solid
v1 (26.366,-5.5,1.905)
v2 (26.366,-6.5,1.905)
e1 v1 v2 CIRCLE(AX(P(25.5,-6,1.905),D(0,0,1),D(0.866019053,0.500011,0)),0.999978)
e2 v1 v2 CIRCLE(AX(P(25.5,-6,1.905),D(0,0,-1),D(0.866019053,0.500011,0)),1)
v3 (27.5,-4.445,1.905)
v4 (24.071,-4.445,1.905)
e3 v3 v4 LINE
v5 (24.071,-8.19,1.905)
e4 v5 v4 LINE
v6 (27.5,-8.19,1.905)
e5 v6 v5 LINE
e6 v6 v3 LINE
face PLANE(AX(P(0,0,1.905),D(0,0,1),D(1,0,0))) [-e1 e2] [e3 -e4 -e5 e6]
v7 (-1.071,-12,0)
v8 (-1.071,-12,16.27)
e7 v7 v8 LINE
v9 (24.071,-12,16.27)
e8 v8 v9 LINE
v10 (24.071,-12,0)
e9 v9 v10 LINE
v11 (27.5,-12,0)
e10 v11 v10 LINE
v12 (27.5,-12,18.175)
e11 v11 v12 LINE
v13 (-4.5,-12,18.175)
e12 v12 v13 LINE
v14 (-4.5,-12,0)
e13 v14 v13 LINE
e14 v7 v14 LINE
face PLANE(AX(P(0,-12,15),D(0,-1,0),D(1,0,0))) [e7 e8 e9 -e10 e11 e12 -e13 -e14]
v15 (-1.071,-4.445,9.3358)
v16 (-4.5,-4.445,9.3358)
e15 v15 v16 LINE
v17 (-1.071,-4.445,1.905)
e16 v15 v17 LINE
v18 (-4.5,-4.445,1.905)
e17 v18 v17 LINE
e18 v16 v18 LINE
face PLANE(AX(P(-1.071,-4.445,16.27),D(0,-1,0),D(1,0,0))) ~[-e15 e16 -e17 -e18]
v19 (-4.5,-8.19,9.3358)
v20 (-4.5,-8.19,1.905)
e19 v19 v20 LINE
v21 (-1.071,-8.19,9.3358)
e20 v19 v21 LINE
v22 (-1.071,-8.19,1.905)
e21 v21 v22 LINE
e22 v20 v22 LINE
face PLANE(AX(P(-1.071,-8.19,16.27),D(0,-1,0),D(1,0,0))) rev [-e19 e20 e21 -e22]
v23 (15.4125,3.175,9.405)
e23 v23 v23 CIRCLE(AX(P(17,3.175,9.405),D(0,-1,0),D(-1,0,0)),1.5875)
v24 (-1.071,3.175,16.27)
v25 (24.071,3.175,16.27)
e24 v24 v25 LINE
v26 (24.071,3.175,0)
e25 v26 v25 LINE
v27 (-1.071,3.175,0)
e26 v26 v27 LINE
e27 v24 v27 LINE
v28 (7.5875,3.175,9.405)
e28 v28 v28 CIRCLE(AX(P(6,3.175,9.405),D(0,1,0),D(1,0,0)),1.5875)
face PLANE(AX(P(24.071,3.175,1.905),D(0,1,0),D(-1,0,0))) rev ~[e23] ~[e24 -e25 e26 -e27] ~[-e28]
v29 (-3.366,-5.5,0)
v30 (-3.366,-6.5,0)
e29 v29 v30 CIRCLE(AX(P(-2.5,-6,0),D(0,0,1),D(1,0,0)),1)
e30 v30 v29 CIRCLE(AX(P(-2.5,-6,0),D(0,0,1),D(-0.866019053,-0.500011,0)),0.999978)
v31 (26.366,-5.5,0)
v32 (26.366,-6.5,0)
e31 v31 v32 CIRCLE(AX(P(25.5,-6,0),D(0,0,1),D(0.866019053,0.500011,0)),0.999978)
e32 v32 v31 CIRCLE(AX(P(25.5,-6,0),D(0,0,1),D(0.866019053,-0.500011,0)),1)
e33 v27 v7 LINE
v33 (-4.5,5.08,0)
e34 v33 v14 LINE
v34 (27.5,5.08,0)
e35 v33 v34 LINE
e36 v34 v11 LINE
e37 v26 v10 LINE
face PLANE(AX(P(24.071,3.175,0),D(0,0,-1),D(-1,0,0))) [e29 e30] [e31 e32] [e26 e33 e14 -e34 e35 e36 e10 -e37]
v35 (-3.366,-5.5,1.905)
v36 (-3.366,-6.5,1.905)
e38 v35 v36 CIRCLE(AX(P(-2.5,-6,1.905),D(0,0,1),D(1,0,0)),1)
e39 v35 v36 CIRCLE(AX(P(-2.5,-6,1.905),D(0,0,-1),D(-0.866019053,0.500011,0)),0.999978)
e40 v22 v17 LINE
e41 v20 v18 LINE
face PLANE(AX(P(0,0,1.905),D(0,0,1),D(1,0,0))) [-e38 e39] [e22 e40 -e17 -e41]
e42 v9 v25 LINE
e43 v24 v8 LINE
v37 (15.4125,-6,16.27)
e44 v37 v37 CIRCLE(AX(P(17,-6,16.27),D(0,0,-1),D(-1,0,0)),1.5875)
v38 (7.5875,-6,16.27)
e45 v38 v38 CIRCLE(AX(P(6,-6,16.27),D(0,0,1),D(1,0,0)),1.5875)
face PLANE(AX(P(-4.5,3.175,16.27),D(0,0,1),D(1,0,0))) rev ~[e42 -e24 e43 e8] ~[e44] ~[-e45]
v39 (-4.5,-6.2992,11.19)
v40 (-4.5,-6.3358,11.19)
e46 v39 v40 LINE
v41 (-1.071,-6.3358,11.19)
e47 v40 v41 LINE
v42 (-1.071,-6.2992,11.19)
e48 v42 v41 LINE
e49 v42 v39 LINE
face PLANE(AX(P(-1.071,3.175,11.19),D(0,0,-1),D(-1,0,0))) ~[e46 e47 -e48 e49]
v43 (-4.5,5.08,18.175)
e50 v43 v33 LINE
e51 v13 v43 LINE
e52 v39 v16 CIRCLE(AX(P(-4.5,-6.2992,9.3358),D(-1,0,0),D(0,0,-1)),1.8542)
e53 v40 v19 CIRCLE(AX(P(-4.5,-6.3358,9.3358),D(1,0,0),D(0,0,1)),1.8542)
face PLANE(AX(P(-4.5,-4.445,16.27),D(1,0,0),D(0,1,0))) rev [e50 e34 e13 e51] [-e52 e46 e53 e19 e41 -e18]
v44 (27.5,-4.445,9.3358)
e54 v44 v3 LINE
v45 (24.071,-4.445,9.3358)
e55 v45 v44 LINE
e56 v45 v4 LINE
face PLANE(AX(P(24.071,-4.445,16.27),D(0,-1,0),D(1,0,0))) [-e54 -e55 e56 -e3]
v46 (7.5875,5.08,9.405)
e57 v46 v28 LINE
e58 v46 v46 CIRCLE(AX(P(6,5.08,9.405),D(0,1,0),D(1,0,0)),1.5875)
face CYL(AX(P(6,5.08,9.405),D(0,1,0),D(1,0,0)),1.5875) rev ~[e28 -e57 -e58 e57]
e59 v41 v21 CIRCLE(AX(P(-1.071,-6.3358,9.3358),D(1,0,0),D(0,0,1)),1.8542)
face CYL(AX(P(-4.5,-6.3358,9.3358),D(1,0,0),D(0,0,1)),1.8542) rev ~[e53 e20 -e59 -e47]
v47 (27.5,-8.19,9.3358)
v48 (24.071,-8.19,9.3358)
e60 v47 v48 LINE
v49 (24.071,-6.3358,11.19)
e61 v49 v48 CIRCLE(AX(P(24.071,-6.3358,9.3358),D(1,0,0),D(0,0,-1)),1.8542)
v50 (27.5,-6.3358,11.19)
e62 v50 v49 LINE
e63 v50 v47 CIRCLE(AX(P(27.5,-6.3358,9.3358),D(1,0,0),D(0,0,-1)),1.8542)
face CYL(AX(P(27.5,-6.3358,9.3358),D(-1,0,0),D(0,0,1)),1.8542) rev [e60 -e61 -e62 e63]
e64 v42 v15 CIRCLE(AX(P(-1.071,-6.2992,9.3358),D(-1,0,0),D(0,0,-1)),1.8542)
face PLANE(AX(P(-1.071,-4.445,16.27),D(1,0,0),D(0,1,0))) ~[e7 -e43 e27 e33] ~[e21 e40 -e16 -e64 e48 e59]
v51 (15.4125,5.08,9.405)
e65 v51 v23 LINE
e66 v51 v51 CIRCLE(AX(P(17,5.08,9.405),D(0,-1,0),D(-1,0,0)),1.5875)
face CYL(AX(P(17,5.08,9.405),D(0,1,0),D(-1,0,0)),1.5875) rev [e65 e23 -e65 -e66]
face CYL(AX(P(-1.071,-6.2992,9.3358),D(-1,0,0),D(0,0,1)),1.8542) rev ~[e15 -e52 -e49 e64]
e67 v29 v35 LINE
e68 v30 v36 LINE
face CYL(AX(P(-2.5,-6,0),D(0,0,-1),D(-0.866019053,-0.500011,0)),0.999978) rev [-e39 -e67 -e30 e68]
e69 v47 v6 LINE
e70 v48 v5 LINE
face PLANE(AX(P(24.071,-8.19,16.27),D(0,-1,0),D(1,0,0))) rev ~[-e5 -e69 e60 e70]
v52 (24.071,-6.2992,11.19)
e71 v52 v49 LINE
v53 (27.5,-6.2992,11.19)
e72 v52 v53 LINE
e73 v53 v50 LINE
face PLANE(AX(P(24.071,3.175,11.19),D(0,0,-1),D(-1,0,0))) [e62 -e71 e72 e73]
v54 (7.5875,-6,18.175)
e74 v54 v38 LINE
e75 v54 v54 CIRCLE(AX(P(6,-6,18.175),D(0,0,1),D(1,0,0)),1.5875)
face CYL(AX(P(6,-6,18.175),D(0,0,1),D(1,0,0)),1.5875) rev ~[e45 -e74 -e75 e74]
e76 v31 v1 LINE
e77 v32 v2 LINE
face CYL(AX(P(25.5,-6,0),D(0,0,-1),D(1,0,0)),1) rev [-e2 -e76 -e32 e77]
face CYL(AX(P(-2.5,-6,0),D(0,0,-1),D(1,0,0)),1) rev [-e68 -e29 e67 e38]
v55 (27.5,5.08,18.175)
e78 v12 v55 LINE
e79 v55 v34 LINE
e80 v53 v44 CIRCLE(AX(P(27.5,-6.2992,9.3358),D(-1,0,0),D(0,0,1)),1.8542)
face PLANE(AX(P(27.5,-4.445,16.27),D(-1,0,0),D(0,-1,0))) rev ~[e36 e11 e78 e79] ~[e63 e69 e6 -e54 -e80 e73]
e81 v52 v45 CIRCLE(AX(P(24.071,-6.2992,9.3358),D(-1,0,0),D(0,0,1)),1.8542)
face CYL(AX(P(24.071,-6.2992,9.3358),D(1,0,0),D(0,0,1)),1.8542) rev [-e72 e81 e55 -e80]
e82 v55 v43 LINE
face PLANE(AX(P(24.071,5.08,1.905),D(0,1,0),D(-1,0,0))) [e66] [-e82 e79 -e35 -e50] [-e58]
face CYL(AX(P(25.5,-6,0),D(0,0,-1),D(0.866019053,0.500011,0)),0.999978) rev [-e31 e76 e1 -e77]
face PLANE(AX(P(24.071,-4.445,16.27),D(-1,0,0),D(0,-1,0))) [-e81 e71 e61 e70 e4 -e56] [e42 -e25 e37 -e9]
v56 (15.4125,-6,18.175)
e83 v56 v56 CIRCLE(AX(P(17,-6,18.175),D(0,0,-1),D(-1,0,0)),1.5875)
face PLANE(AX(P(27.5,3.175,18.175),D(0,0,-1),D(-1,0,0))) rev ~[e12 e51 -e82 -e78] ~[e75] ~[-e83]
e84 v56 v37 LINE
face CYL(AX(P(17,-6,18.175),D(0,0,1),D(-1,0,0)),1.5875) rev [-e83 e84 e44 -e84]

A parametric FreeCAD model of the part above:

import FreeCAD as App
import Part
import Sketcher

V = App.Vector
Q = App.Units.Quantity


def edges_at(feature, points):
    """Names of the edges that pass closest to the given points."""
    edges = feature.Shape.Edges
    near = lambda p: min(range(len(edges)), key=lambda i: edges[i].distToShape(Part.Vertex(*p))[0])
    return sorted({f"Edge{near(p) + 1}" for p in points})

doc = App.newDocument("Part")
body = doc.addObject("PartDesign::Body", "Body")
body.AllowCompound = True

# Sketch on XY plane
sketch1 = body.newObject("Sketcher::SketchObject", "Sketch")
sketch1.AttachmentSupport = (doc.getObject("XY_Plane"), [""])
sketch1.MapMode = "FlatFace"
sketch1.addGeometry([
    Part.LineSegment(V(-4.5, -12, 0), V(-1.1, -12, 0)),  # 0
    Part.LineSegment(V(-1.1, -12, 0), V(-1.1, 5.1, 0)),  # 1
    Part.LineSegment(V(-1.1, 5.1, 0), V(-4.5, 5.1, 0)),  # 2
    Part.LineSegment(V(-4.5, 5.1, 0), V(-4.5, -12, 0)),  # 3
    Part.Circle(V(-2.5, -6, 0), V(0, 0, 1), 1),  # 4
    Part.LineSegment(V(24.1, -12, 0), V(27.5, -12, 0)),  # 5
    Part.LineSegment(V(27.5, -12, 0), V(27.5, 5.1, 0)),  # 6
    Part.LineSegment(V(27.5, 5.1, 0), V(24.1, 5.1, 0)),  # 7
    Part.LineSegment(V(24.1, 5.1, 0), V(24.1, -12, 0)),  # 8
    Part.Circle(V(25.5, -6, 0), V(0, 0, 1), 1),  # 9
], False)
sketch1.addConstraint([
    Sketcher.Constraint("Coincident", 0, 2, 1, 1),
    Sketcher.Constraint("Coincident", 1, 2, 2, 1),
    Sketcher.Constraint("Coincident", 2, 2, 3, 1),
    Sketcher.Constraint("Coincident", 3, 2, 0, 1),
    Sketcher.Constraint("Coincident", 5, 2, 6, 1),
    Sketcher.Constraint("Coincident", 6, 2, 7, 1),
    Sketcher.Constraint("Coincident", 7, 2, 8, 1),
    Sketcher.Constraint("Coincident", 8, 2, 5, 1),
    Sketcher.Constraint("Horizontal", 0),
    Sketcher.Constraint("Vertical", 1),
    Sketcher.Constraint("Horizontal", 2),
    Sketcher.Constraint("Vertical", 3),
    Sketcher.Constraint("Horizontal", 5),
    Sketcher.Constraint("Vertical", 6),
    Sketcher.Constraint("Horizontal", 7),
    Sketcher.Constraint("Vertical", 8),
    Sketcher.Constraint("Equal", 4, 9),
    Sketcher.Constraint("Horizontal", 4, 3, 9, 3),
    Sketcher.Constraint("Horizontal", 3, 2, 5, 2),
    Sketcher.Constraint("Horizontal", 2, 2, 6, 2),
    Sketcher.Constraint("Equal", 2, 5),
    Sketcher.Constraint("DistanceX", 0, 1, 0, 2, Q("0.135 in")),
    Sketcher.Constraint("DistanceY", -1, 1, 1, 2, Q("0.2 in")),
    Sketcher.Constraint("Diameter", 4, 2.0),
    Sketcher.Constraint("DistanceY", 1, 1, 1, 2, 17.08),
    Sketcher.Constraint("DistanceX", 0, 2, 9, 3, Q("1.0461 in")),
    Sketcher.Constraint("DistanceX", 4, 3, 5, 2, Q("1.1811 in")),
    Sketcher.Constraint("DistanceX", 4, 3, -1, 1, 2.5),
    Sketcher.Constraint("DistanceY", 4, 3, -1, 1, 6.0),
    Sketcher.Constraint("DistanceX", -1, 1, 9, 3, 25.5),
])
pad1 = body.newObject("PartDesign::Pad", "Pad")
pad1.Profile = sketch1
pad1.Length = Q("0.075 in")

# Sketch on XZ plane
sketch2 = body.newObject("Sketcher::SketchObject", "Sketch001")
sketch2.AttachmentSupport = (doc.getObject("XZ_Plane"), [""])
sketch2.MapMode = "FlatFace"
sketch2.AttachmentOffset = App.Placement(V(0, 0, -0.125 * 25.4), App.Rotation())
sketch2.addGeometry([
    Part.LineSegment(V(-4, 2, 0), V(-4, 18, 0)),
    Part.LineSegment(V(-4, 18, 0), V(28, 18, 0)),
    Part.LineSegment(V(28, 18, 0), V(28, 2, 0)),
    Part.LineSegment(V(28, 2, 0), V(-4, 2, 0)),
], False)
sketch2.addConstraint([
    Sketcher.Constraint("Coincident", 0, 2, 1, 1),
    Sketcher.Constraint("Coincident", 1, 2, 2, 1),
    Sketcher.Constraint("Coincident", 2, 2, 3, 1),
    Sketcher.Constraint("Coincident", 3, 2, 0, 1),
    Sketcher.Constraint("Vertical", 0),
    Sketcher.Constraint("Horizontal", 1),
    Sketcher.Constraint("Vertical", 2),
    Sketcher.Constraint("Horizontal", 3),
    Sketcher.Constraint("DistanceY", -1, 1, 2, 2, Q("0.075 in")),
    Sketcher.Constraint("DistanceX", 1, 1, 1, 2, 32.0),
    Sketcher.Constraint("DistanceY", 0, 1, 0, 2, 16.27),
    Sketcher.Constraint("DistanceX", 0, 2, -1, 1, 4.5),
])
pad2 = body.newObject("PartDesign::Pad", "Pad001")
pad2.Profile = sketch2
pad2.Length = Q("0.075 in")
pad2.Reversed = True

# Sketch on XZ plane
sketch3 = body.newObject("Sketcher::SketchObject", "Sketch002")
sketch3.AttachmentSupport = (doc.getObject("XZ_Plane"), [""])
sketch3.MapMode = "FlatFace"
sketch3.AttachmentOffset = App.Placement(V(0, 0, -0.125 * 25.4), App.Rotation())
sketch3.addGeometry([
    Part.LineSegment(V(-4.5, 18.2, 0), V(-4.5, 16.3, 0)),
    Part.LineSegment(V(-4.5, 16.3, 0), V(27.5, 16.3, 0)),
    Part.LineSegment(V(27.5, 16.3, 0), V(27.5, 18.2, 0)),
    Part.LineSegment(V(27.5, 18.2, 0), V(-4.5, 18.2, 0)),
], False)
sketch3.addConstraint([
    Sketcher.Constraint("Coincident", 0, 2, 1, 1),
    Sketcher.Constraint("Coincident", 1, 2, 2, 1),
    Sketcher.Constraint("Coincident", 2, 2, 3, 1),
    Sketcher.Constraint("Coincident", 3, 2, 0, 1),
    Sketcher.Constraint("Vertical", 0),
    Sketcher.Constraint("Horizontal", 1),
    Sketcher.Constraint("Vertical", 2),
    Sketcher.Constraint("Horizontal", 3),
    Sketcher.Constraint("DistanceY", 0, 2, 0, 1, Q("0.075 in")),
    Sketcher.Constraint("DistanceX", 1, 1, 1, 2, 32.0),
    Sketcher.Constraint("DistanceX", 0, 2, -1, 1, 4.5),
    Sketcher.Constraint("DistanceY", -1, 1, 0, 2, 16.27),
])
pad3 = body.newObject("PartDesign::Pad", "Pad002")
pad3.Profile = sketch3
pad3.Length = 15.175

# Sketch on XZ plane
sketch4 = body.newObject("Sketcher::SketchObject", "Sketch003")
sketch4.AttachmentSupport = (doc.getObject("XZ_Plane"), [""])
sketch4.MapMode = "FlatFace"
sketch4.AttachmentOffset = App.Placement(V(0, 0, -0.2 * 25.4), App.Rotation())
sketch4.addGeometry(Part.Circle(V(6, 9.4, 0), V(0, 0, 1), 1.6), False)
sketch4.addConstraint([
    Sketcher.Constraint("Diameter", 0, Q("0.125 in")),
    Sketcher.Constraint("DistanceX", -1, 1, 0, 3, 6.0),
    Sketcher.Constraint("DistanceY", -1, 1, 0, 3, 9.405),
])
pocket1 = body.newObject("PartDesign::Pocket", "Pocket")
pocket1.Profile = sketch4
pocket1.Type = "UpToFirst"
pocket1.Reversed = True

# Sketch on XY plane
sketch5 = body.newObject("Sketcher::SketchObject", "Sketch004")
sketch5.AttachmentSupport = (doc.getObject("XY_Plane"), [""])
sketch5.MapMode = "FlatFace"
sketch5.AttachmentOffset = App.Placement(V(0, 0, 18.175), App.Rotation())
sketch5.addGeometry(Part.Circle(V(6, -6, 0), V(0, 0, 1), 1.6), False)
sketch5.addConstraint([
    Sketcher.Constraint("Diameter", 0, Q("0.125 in")),
    Sketcher.Constraint("DistanceX", -1, 1, 0, 3, 6.0),
    Sketcher.Constraint("DistanceY", 0, 3, -1, 1, 6.0),
])
pocket2 = body.newObject("PartDesign::Pocket", "Pocket001")
pocket2.Profile = sketch5
pocket2.Type = "UpToFirst"
doc.recompute()

datumplane = body.newObject("PartDesign::Plane", "DatumPlane")
datumplane.AttachmentSupport = (doc.getObject("YZ_Plane"), [""])
datumplane.MapMode = "FlatFace"
datumplane.AttachmentOffset = App.Placement(V(0, 0, 11.5), App.Rotation())
mirrored = body.newObject("PartDesign::Mirrored", "Mirrored")
mirrored.Originals = [pocket2]
mirrored.MirrorPlane = (datumplane, [""])
body.Tip = mirrored
doc.recompute()

datumplane2 = body.newObject("PartDesign::Plane", "DatumPlane001")
datumplane2.AttachmentSupport = (doc.getObject("YZ_Plane"), [""])
datumplane2.MapMode = "FlatFace"
datumplane2.AttachmentOffset = App.Placement(V(0, 0, 11.5), App.Rotation())
mirrored2 = body.newObject("PartDesign::Mirrored", "Mirrored001")
mirrored2.Originals = [pocket1]
mirrored2.MirrorPlane = (datumplane2, [""])
body.Tip = mirrored2

# Sketch on XY plane
sketch6 = body.newObject("Sketcher::SketchObject", "Sketch005")
sketch6.AttachmentSupport = (doc.getObject("XY_Plane"), [""])
sketch6.MapMode = "FlatFace"
sketch6.AttachmentOffset = App.Placement(V(0, 0, 16.27), App.Rotation())
sketch6.addGeometry([
    Part.LineSegment(V(24.1, -4.4, 0), V(24.1, 3.2, 0)),  # 0
    Part.LineSegment(V(24.1, 3.2, 0), V(27.5, 3.2, 0)),  # 1
    Part.LineSegment(V(27.5, 3.2, 0), V(27.5, -4.4, 0)),  # 2
    Part.LineSegment(V(27.5, -4.4, 0), V(24.1, -4.4, 0)),  # 3
    Part.LineSegment(V(24.1, -12, 0), V(24.1, -8.2, 0)),  # 4
    Part.LineSegment(V(24.1, -8.2, 0), V(27.5, -8.2, 0)),  # 5
    Part.LineSegment(V(27.5, -8.2, 0), V(27.5, -12, 0)),  # 6
    Part.LineSegment(V(27.5, -12, 0), V(24.1, -12, 0)),  # 7
], False)
sketch6.addConstraint([
    Sketcher.Constraint("Coincident", 0, 2, 1, 1),
    Sketcher.Constraint("Coincident", 1, 2, 2, 1),
    Sketcher.Constraint("Coincident", 2, 2, 3, 1),
    Sketcher.Constraint("Coincident", 3, 2, 0, 1),
    Sketcher.Constraint("Coincident", 4, 2, 5, 1),
    Sketcher.Constraint("Coincident", 5, 2, 6, 1),
    Sketcher.Constraint("Coincident", 6, 2, 7, 1),
    Sketcher.Constraint("Coincident", 7, 2, 4, 1),
    Sketcher.Constraint("Vertical", 0),
    Sketcher.Constraint("Horizontal", 1),
    Sketcher.Constraint("Vertical", 2),
    Sketcher.Constraint("Horizontal", 3),
    Sketcher.Constraint("Vertical", 4),
    Sketcher.Constraint("Horizontal", 5),
    Sketcher.Constraint("Vertical", 6),
    Sketcher.Constraint("Horizontal", 7),
    Sketcher.Constraint("Vertical", 3, 2, 4, 2),
    Sketcher.Constraint("Vertical", 2, 2, 5, 2),
    Sketcher.Constraint("DistanceY", 0, 1, 0, 2, Q("0.3 in")),
    Sketcher.Constraint("DistanceY", 4, 1, 4, 2, Q("0.15 in")),
    Sketcher.Constraint("DistanceX", 1, 1, 1, 2, Q("0.135 in")),
    Sketcher.Constraint("DistanceY", -1, 1, 0, 2, Q("0.125 in")),
    Sketcher.Constraint("DistanceX", -1, 1, 0, 2, 24.071),
    Sketcher.Constraint("DistanceY", 4, 2, -1, 1, 8.19),
])
pad4 = body.newObject("PartDesign::Pad", "Pad003")
pad4.Profile = sketch6
pad4.Type = "UpToFirst"
pad4.Reversed = True
doc.recompute()

datumplane3 = body.newObject("PartDesign::Plane", "DatumPlane002")
datumplane3.AttachmentSupport = (doc.getObject("YZ_Plane"), [""])
datumplane3.MapMode = "FlatFace"
datumplane3.AttachmentOffset = App.Placement(V(0, 0, 11.5), App.Rotation())
mirrored3 = body.newObject("PartDesign::Mirrored", "Mirrored002")
mirrored3.Originals = [pad4]
mirrored3.MirrorPlane = (datumplane3, [""])
body.Tip = mirrored3

# Sketch on XY plane
sketch7 = body.newObject("Sketcher::SketchObject", "Sketch006")
sketch7.AttachmentSupport = (doc.getObject("XY_Plane"), [""])
sketch7.MapMode = "FlatFace"
sketch7.AttachmentOffset = App.Placement(V(0, 0, 0.075 * 25.4), App.Rotation())
sketch7.addGeometry([
    Part.LineSegment(V(24.1, 3.2, 0), V(-1.1, 3.2, 0)),
    Part.LineSegment(V(-1.1, 3.2, 0), V(-1.1, 5.1, 0)),
    Part.LineSegment(V(-1.1, 5.1, 0), V(24.1, 5.1, 0)),
    Part.LineSegment(V(24.1, 5.1, 0), V(24.1, 3.2, 0)),
], False)
sketch7.addConstraint([
    Sketcher.Constraint("Coincident", 0, 2, 1, 1),
    Sketcher.Constraint("Coincident", 1, 2, 2, 1),
    Sketcher.Constraint("Coincident", 2, 2, 3, 1),
    Sketcher.Constraint("Coincident", 3, 2, 0, 1),
    Sketcher.Constraint("Horizontal", 0),
    Sketcher.Constraint("Vertical", 1),
    Sketcher.Constraint("Horizontal", 2),
    Sketcher.Constraint("Vertical", 3),
    Sketcher.Constraint("DistanceY", -1, 1, 1, 2, Q("0.2 in")),
    Sketcher.Constraint("DistanceY", 1, 1, 1, 2, Q("0.075 in")),
    Sketcher.Constraint("DistanceX", 0, 2, 0, 1, 25.142),
    Sketcher.Constraint("DistanceX", 0, 2, -1, 1, 1.071),
])
pad5 = body.newObject("PartDesign::Pad", "Pad004")
pad5.Profile = sketch7
pad5.Length = Q("0.075 in")
pad5.Reversed = True

# Sketch on XY plane
sketch8 = body.newObject("Sketcher::SketchObject", "Sketch007")
sketch8.AttachmentSupport = (doc.getObject("XY_Plane"), [""])
sketch8.MapMode = "FlatFace"
sketch8.AttachmentOffset = App.Placement(V(0, 0, 16.27), App.Rotation())
sketch8.addGeometry([
    Part.LineSegment(V(27.5, -8.2, 0), V(24.1, -8.2, 0)),
    Part.LineSegment(V(24.1, -8.2, 0), V(24.1, -4.4, 0)),
    Part.LineSegment(V(24.1, -4.4, 0), V(27.5, -4.4, 0)),
    Part.LineSegment(V(27.5, -4.4, 0), V(27.5, -8.2, 0)),
], False)
sketch8.addConstraint([
    Sketcher.Constraint("Coincident", 0, 2, 1, 1),
    Sketcher.Constraint("Coincident", 1, 2, 2, 1),
    Sketcher.Constraint("Coincident", 2, 2, 3, 1),
    Sketcher.Constraint("Coincident", 3, 2, 0, 1),
    Sketcher.Constraint("Horizontal", 0),
    Sketcher.Constraint("Vertical", 1),
    Sketcher.Constraint("Horizontal", 2),
    Sketcher.Constraint("Vertical", 3),
    Sketcher.Constraint("DistanceX", 0, 2, 0, 1, Q("0.135 in")),
    Sketcher.Constraint("DistanceY", 1, 2, -1, 1, Q("0.175 in")),
    Sketcher.Constraint("DistanceY", 1, 1, 1, 2, 3.745),
    Sketcher.Constraint("DistanceX", -1, 1, 0, 2, 24.071),
])
pad6 = body.newObject("PartDesign::Pad", "Pad005")
pad6.Profile = sketch8
pad6.Length = Q("0.2 in")
pad6.Reversed = True
doc.recompute()

fillet = body.newObject("PartDesign::Fillet", "Fillet")
fillet.Base = (pad6, edges_at(pad6, [(25.785, -4.445, 11.19), (25.785, -8.19, 11.19)]))
fillet.Radius = Q("0.073 in")
doc.recompute()

datumplane4 = body.newObject("PartDesign::Plane", "DatumPlane003")
datumplane4.AttachmentSupport = (doc.getObject("YZ_Plane"), [""])
datumplane4.MapMode = "FlatFace"
datumplane4.AttachmentOffset = App.Placement(V(0, 0, 11.5), App.Rotation())
mirrored4 = body.newObject("PartDesign::Mirrored", "Mirrored003")
mirrored4.Originals = [pad6]
mirrored4.MirrorPlane = (datumplane4, [""])
body.Tip = mirrored4
doc.recompute()

datumplane5 = body.newObject("PartDesign::Plane", "DatumPlane004")
datumplane5.AttachmentSupport = (doc.getObject("YZ_Plane"), [""])
datumplane5.MapMode = "FlatFace"
datumplane5.AttachmentOffset = App.Placement(V(0, 0, 11.5), App.Rotation())
mirrored5 = body.newObject("PartDesign::Mirrored", "Mirrored004")
mirrored5.Originals = [fillet]
mirrored5.MirrorPlane = (datumplane5, [""])
body.Tip = mirrored5

doc.recompute()
